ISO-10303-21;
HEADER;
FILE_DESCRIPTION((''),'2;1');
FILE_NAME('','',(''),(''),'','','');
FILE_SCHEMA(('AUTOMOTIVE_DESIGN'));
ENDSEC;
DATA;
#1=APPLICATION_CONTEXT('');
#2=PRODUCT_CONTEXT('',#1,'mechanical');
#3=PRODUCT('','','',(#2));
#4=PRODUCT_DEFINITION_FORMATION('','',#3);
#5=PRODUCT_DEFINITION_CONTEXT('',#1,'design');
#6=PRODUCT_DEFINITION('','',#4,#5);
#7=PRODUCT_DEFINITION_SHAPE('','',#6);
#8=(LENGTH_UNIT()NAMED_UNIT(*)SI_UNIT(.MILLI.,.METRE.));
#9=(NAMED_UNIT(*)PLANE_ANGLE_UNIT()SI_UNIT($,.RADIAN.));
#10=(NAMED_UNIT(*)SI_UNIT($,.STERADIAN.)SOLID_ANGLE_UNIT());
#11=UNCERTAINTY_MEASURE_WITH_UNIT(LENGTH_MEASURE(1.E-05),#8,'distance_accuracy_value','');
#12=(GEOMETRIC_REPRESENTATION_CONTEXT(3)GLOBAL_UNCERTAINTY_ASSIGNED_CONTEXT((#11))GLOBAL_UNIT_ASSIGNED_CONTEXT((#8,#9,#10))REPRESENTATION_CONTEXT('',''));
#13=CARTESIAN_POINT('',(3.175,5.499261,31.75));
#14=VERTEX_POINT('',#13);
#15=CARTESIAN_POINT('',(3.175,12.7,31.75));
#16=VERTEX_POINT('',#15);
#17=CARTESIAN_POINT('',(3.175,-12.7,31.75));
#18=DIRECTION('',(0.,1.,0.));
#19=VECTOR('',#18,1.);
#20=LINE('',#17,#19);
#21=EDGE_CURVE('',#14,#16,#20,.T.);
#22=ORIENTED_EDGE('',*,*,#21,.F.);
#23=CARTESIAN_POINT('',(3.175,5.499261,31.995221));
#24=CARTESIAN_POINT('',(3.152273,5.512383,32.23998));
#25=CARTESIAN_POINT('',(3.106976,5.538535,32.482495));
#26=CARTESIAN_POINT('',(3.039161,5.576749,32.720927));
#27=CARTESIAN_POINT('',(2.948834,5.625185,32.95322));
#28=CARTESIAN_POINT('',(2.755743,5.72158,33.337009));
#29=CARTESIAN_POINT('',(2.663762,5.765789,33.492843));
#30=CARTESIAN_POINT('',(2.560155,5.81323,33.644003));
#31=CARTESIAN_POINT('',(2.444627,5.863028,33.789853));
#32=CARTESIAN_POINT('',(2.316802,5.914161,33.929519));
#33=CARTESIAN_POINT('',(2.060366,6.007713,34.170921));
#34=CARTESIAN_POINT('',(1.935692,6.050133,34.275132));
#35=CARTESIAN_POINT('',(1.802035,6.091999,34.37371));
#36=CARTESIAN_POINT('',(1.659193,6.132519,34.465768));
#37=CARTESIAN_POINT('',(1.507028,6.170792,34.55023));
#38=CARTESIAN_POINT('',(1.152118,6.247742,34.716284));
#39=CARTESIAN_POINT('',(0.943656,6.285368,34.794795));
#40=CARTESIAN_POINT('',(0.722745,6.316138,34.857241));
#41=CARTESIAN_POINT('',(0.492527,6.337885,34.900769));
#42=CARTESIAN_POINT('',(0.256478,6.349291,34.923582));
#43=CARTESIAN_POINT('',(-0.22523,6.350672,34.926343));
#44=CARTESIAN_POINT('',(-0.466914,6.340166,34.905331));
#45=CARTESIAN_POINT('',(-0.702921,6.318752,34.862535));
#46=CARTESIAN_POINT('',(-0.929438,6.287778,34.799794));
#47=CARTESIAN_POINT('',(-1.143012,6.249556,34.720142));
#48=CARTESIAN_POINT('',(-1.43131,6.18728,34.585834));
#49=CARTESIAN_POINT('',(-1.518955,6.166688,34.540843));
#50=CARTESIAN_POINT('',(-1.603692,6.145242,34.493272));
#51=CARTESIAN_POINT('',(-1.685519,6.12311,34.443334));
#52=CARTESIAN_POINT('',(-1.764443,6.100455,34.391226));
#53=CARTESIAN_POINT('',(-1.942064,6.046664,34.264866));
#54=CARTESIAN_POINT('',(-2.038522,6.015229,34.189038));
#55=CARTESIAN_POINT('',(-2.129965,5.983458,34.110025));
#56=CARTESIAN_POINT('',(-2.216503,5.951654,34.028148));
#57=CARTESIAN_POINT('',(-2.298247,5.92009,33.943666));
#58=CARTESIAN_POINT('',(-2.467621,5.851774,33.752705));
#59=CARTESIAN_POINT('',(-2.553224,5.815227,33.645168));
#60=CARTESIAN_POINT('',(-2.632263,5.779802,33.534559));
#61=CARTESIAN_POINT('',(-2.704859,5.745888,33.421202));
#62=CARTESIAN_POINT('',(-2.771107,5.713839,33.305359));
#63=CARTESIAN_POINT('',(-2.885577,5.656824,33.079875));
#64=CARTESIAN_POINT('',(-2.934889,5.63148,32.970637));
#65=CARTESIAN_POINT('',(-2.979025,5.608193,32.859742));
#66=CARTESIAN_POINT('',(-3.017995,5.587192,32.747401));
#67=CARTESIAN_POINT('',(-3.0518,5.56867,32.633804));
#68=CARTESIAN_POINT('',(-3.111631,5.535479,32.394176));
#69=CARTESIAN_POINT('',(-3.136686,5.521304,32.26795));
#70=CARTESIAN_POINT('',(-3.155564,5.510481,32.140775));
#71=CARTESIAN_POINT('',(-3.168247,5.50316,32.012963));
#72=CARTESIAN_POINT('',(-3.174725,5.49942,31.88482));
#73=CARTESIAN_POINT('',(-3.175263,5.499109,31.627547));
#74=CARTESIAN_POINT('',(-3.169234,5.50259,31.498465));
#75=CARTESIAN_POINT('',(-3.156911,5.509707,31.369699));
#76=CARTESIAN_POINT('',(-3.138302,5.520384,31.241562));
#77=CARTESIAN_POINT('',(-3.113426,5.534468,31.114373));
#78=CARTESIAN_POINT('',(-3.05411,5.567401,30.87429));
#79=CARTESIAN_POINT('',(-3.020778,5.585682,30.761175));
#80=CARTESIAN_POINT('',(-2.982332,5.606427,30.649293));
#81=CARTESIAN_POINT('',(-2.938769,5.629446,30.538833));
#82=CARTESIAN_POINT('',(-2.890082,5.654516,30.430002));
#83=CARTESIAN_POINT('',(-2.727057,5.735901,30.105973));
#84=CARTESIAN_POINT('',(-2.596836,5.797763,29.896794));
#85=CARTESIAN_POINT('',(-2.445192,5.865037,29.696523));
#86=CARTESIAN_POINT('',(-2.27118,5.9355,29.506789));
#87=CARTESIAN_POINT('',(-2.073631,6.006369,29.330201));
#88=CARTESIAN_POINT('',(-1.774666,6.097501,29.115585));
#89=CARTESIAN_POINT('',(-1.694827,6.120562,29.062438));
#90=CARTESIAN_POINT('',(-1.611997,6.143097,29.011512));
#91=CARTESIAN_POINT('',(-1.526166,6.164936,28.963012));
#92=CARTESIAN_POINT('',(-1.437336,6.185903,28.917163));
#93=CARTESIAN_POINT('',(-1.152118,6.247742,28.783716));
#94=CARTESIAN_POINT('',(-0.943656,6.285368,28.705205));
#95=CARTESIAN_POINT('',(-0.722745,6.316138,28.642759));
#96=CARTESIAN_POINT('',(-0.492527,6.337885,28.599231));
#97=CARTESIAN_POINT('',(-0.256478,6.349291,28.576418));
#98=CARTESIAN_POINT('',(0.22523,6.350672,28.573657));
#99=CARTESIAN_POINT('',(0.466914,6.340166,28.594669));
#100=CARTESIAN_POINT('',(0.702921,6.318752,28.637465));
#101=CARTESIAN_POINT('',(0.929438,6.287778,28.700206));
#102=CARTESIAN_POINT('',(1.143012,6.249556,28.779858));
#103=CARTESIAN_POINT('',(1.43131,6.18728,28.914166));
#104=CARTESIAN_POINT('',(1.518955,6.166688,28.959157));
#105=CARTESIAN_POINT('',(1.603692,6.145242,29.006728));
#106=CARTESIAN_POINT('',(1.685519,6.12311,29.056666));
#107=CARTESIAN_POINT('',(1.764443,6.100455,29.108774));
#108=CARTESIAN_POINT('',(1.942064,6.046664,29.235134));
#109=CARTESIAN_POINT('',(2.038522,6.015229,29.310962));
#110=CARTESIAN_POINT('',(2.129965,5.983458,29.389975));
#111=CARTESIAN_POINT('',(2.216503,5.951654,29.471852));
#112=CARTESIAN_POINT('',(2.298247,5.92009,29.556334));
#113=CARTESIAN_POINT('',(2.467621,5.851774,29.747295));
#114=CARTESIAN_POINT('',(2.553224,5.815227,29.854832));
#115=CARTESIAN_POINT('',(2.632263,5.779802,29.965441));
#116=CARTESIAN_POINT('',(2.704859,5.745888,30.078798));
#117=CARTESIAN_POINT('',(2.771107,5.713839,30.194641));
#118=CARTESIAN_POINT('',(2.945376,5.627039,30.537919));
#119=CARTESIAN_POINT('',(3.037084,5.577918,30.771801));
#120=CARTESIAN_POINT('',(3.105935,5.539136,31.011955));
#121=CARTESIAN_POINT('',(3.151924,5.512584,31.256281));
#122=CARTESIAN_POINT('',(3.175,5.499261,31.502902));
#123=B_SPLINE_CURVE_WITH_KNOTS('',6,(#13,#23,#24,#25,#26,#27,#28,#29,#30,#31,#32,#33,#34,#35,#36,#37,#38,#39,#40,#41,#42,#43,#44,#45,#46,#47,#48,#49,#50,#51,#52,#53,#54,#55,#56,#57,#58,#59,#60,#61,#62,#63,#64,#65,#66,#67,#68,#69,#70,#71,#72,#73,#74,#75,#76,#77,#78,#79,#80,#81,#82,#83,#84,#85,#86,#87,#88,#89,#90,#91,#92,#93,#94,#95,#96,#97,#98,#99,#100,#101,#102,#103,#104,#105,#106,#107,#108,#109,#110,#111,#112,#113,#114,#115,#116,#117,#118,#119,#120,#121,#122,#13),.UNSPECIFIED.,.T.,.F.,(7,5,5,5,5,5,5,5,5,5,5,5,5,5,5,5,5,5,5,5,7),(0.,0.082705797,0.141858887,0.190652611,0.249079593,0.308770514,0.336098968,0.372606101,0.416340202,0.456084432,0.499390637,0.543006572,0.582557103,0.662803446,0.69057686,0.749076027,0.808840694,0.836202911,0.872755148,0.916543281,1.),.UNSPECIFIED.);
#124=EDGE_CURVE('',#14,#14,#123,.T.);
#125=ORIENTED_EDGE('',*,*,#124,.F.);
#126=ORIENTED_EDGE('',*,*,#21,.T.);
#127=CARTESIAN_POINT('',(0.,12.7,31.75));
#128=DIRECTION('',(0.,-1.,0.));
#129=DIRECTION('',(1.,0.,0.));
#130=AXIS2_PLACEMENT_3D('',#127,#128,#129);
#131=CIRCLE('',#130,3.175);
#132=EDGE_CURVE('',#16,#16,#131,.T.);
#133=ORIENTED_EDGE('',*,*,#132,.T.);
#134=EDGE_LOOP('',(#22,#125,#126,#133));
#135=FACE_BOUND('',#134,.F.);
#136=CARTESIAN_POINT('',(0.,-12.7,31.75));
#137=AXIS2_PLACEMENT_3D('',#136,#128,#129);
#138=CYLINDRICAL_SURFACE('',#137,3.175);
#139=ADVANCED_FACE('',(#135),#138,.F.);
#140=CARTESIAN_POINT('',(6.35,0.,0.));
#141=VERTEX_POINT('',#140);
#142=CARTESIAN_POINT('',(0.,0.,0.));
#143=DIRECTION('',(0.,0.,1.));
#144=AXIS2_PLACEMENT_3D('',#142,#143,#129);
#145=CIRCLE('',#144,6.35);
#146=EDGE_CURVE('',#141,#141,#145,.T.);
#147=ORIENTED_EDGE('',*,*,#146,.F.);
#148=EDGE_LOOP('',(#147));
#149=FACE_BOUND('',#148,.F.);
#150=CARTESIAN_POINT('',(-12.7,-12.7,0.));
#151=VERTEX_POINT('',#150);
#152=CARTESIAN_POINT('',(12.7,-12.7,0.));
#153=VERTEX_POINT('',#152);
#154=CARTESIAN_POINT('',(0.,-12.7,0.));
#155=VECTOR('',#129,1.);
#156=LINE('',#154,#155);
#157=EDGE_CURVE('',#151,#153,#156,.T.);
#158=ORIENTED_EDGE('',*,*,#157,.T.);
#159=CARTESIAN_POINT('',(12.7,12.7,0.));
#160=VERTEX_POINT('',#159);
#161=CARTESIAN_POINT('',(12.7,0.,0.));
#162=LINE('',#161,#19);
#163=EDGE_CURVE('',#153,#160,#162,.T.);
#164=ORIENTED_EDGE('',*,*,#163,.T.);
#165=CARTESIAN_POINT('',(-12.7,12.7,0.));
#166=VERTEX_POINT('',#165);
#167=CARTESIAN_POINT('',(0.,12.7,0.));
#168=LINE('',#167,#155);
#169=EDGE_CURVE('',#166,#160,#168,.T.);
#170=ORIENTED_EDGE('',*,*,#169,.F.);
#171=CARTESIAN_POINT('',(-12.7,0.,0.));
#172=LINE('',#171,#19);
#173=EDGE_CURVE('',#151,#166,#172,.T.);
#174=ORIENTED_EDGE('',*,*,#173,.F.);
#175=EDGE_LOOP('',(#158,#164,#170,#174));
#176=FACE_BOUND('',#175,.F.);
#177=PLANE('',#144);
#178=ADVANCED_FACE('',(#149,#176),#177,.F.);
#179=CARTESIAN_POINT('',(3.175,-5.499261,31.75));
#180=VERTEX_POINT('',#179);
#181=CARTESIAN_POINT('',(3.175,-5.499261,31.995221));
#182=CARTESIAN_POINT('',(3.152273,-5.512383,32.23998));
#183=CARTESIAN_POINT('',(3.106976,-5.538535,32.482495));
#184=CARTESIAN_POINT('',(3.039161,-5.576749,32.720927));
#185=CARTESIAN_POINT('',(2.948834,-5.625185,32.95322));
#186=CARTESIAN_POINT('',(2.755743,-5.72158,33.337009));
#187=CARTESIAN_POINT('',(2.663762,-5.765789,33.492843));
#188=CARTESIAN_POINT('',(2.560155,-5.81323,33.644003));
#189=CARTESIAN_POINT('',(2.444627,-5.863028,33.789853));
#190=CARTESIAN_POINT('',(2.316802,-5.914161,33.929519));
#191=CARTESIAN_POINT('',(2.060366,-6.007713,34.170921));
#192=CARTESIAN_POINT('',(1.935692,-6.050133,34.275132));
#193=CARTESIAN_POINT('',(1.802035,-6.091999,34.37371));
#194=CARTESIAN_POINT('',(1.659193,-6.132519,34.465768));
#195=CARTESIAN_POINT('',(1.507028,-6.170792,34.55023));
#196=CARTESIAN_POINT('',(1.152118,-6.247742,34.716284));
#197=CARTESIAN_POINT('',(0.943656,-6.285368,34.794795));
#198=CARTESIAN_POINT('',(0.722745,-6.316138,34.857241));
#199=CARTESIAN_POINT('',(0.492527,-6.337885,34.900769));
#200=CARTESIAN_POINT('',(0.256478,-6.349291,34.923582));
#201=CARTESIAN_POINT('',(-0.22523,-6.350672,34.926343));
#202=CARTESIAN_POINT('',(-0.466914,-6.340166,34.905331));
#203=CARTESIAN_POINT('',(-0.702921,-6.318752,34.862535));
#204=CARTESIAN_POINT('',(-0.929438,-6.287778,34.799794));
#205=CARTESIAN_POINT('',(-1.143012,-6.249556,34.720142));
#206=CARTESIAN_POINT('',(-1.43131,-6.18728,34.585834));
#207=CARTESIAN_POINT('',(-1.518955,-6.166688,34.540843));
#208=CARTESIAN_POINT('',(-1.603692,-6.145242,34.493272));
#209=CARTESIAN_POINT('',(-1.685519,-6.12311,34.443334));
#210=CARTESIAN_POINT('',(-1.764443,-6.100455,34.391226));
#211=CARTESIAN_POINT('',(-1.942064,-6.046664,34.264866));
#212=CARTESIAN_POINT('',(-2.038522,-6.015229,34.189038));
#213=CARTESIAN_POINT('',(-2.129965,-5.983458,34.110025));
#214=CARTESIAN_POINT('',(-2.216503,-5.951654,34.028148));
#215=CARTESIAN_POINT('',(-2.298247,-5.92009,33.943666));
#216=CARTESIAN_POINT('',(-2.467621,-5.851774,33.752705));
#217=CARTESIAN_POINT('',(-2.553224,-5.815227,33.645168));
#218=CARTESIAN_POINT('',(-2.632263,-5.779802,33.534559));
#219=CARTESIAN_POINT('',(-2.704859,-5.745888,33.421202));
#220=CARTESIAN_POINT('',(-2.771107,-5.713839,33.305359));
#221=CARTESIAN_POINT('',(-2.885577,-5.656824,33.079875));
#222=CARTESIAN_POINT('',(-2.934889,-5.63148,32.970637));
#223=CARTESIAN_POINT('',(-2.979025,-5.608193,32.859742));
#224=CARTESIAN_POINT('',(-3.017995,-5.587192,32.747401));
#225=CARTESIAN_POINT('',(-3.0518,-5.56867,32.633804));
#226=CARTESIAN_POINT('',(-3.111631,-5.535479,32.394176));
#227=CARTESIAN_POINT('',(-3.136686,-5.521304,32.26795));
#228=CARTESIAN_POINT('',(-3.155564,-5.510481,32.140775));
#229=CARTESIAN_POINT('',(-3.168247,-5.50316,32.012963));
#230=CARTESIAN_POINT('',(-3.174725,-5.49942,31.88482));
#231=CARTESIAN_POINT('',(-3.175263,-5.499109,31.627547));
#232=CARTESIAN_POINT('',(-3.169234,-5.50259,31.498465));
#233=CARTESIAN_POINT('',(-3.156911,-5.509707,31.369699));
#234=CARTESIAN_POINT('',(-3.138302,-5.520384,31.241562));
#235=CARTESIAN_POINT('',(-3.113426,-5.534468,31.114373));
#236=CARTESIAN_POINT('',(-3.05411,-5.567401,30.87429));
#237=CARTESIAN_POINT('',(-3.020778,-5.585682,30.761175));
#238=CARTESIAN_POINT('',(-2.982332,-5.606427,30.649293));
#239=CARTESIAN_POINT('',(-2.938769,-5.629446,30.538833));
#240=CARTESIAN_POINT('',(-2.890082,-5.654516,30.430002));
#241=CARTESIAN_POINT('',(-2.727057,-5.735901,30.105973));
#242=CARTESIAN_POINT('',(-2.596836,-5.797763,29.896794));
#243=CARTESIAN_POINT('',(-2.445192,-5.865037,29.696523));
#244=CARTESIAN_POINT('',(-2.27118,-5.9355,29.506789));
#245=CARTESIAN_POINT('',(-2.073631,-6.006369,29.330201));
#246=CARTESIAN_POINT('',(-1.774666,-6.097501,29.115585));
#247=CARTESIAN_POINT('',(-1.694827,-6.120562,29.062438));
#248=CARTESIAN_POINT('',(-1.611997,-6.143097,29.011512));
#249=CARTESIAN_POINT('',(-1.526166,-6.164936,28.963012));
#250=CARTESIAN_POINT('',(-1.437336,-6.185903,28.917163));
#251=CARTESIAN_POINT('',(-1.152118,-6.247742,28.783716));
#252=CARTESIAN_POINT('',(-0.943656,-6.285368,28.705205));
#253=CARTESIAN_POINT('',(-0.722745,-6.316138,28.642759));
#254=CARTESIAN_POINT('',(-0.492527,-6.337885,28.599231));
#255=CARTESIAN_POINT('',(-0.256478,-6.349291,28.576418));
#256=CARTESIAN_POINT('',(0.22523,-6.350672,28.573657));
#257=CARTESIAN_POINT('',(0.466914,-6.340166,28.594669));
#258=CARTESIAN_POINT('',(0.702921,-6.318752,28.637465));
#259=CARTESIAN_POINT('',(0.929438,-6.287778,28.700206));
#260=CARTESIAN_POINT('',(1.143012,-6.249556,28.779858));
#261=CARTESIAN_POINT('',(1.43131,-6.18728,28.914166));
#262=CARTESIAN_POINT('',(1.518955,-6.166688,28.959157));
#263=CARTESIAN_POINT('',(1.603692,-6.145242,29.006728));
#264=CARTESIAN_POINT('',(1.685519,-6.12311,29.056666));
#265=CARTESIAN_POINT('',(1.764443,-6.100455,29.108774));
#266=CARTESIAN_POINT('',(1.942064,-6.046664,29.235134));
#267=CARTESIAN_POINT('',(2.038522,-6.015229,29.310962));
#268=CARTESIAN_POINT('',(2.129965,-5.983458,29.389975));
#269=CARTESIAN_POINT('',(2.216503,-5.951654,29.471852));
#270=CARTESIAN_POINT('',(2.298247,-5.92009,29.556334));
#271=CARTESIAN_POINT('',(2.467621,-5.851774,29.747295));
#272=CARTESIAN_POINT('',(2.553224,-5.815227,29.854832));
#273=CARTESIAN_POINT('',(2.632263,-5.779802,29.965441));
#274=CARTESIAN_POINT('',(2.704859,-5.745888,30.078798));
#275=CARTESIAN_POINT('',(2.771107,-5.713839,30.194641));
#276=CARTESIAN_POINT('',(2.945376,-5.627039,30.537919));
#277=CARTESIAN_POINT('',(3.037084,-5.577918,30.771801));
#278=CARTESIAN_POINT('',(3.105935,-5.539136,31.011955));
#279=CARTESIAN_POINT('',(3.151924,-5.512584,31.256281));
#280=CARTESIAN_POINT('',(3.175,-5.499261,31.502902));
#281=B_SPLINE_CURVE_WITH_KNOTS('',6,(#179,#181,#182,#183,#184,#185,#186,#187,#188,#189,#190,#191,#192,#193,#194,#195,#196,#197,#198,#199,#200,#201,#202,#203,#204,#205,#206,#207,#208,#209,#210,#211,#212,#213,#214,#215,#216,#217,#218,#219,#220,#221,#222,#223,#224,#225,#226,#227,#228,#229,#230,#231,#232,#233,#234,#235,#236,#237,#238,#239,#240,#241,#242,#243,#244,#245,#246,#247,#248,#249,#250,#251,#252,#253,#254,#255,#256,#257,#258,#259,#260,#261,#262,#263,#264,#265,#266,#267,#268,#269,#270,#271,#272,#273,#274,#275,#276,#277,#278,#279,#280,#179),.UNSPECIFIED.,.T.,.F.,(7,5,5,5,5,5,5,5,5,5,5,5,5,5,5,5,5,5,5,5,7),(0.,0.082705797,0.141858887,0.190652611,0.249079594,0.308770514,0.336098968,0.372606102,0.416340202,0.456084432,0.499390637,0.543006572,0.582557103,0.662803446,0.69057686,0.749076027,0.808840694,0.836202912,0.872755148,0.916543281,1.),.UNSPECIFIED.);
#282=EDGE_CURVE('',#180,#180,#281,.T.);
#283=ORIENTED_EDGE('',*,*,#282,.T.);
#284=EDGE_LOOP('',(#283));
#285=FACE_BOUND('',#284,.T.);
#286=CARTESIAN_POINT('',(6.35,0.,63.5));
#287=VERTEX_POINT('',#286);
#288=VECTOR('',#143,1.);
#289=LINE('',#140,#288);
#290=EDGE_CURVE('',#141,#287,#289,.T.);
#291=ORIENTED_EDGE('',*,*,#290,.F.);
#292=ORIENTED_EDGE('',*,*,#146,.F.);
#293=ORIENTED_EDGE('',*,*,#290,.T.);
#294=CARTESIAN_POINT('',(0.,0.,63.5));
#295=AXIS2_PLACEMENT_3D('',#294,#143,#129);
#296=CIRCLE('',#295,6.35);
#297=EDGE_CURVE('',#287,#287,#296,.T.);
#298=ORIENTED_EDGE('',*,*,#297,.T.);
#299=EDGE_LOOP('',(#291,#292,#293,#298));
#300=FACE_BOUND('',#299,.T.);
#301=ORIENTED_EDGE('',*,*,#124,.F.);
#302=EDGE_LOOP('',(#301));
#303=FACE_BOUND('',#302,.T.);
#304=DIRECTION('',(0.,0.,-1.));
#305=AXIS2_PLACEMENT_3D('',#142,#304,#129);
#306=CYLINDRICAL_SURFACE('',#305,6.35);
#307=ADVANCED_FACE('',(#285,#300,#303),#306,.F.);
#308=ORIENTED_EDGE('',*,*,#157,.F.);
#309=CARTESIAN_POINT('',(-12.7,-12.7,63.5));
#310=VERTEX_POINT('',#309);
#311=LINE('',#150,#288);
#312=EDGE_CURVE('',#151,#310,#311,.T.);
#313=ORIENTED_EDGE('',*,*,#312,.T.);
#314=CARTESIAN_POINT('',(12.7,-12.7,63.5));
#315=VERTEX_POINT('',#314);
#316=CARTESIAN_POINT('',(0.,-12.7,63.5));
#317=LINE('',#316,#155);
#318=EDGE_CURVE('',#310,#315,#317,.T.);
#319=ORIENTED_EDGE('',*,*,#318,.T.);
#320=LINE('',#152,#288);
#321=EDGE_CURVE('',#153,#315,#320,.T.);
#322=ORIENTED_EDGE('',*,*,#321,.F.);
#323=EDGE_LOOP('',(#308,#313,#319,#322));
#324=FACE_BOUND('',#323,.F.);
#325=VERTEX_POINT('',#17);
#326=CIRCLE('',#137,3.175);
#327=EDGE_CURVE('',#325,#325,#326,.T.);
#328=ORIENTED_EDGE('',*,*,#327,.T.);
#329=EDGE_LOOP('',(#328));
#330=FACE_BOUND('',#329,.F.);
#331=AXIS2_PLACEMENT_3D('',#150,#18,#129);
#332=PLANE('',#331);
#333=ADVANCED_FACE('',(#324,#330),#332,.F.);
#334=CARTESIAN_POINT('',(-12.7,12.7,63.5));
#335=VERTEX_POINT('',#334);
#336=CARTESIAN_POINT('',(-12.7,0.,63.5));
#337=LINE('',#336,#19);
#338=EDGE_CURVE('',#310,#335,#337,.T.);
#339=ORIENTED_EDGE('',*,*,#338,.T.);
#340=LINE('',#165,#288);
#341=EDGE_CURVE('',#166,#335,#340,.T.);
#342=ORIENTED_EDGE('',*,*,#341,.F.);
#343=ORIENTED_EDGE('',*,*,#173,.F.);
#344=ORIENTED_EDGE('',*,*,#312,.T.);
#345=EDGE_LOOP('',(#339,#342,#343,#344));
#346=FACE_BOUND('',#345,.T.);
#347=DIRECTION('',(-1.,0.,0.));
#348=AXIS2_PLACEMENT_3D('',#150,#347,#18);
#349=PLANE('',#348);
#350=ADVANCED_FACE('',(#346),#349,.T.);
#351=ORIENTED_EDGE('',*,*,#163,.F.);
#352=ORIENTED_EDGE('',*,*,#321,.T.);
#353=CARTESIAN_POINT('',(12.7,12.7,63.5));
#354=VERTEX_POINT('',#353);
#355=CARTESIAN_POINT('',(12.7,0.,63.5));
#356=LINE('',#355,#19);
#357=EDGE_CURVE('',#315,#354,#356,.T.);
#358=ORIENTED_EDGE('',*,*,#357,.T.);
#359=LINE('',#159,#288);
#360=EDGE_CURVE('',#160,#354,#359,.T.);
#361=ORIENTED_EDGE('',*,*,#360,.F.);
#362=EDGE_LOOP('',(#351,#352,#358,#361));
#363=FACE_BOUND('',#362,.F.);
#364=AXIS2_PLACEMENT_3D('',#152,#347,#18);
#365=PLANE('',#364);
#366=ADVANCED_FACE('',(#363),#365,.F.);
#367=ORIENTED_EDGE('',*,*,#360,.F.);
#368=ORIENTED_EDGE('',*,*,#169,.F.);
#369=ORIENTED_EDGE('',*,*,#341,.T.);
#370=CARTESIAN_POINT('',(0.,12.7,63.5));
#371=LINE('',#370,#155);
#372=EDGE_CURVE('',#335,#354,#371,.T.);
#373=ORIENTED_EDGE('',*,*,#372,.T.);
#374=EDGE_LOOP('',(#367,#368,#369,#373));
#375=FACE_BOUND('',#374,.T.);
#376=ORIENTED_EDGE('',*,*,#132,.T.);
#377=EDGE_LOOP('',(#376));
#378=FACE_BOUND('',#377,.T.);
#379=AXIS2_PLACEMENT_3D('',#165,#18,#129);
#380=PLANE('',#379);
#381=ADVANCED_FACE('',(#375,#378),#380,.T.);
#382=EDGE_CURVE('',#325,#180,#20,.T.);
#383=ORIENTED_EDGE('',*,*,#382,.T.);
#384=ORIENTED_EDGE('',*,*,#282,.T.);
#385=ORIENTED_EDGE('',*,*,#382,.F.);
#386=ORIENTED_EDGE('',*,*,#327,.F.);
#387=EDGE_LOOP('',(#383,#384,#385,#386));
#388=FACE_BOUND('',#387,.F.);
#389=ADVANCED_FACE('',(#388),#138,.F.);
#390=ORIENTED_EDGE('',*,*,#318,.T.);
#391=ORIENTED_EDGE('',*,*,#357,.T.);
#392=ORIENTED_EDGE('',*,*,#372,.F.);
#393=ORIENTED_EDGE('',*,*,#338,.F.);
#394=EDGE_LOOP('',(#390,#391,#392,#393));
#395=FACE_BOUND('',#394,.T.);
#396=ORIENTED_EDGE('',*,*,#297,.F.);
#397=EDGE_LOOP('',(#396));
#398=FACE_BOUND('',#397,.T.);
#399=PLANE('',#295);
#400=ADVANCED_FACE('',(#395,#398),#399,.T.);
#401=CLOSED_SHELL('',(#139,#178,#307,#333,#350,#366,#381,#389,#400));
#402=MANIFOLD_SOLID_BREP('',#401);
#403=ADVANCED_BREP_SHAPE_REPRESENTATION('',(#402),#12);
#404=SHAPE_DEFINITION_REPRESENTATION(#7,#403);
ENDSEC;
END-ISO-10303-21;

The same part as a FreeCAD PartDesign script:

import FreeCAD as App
import Part
import Sketcher
from FreeCAD import Vector
Q = App.Units.Quantity


def add_polygon(sketch, points):
    """Adds a closed chain of lines whose ends are joined by coincident constraints."""
    first, n = sketch.GeometryCount, len(points)
    for a, b in zip(points, points[1:] + points[:1]):
        sketch.addGeometry(Part.LineSegment(App.Vector(*a, 0), App.Vector(*b, 0)), False)
    for i in range(n):
        sketch.addConstraint(Sketcher.Constraint("Coincident", first + i, 2, first + (i + 1) % n, 1))

doc = App.newDocument("Part")
body = doc.addObject("PartDesign::Body", "Body")

# Sketch on XY plane
sketch1 = body.newObject("Sketcher::SketchObject", "Sketch")
sketch1.AttachmentSupport = (doc.getObject("XY_Plane"), [""])
sketch1.MapMode = "FlatFace"
add_polygon(sketch1, [(-13, 13), (-13, -13), (13, -13), (13, 13)])  # lines 0-3
sketch1.addGeometry(Part.Circle(Vector(0, 0, 0), Vector(0, 0, 1), 6), False)  # 4
sketch1.addConstraint([
    Sketcher.Constraint("Vertical", 0),
    Sketcher.Constraint("Horizontal", 1),
    Sketcher.Constraint("Vertical", 2),
    Sketcher.Constraint("Horizontal", 3),
    Sketcher.Constraint("Coincident", 4, 3, -1, 1),
    Sketcher.Constraint("Symmetric", 0, 2, 2, 2, -1, 1),
    Sketcher.Constraint("Equal", 3, 0),
    Sketcher.Constraint("Diameter", 4, Q("0.5 in")),
    Sketcher.Constraint("DistanceX", 1, 1, 1, 2, Q("1 in")),
])
pad1 = body.newObject("PartDesign::Pad", "Pad")
pad1.Profile = sketch1
pad1.Length = Q("2.5 in")

# Sketch on XZ plane
sketch2 = body.newObject("Sketcher::SketchObject", "Sketch001")
sketch2.AttachmentSupport = (doc.getObject("XZ_Plane"), [""])
sketch2.MapMode = "FlatFace"
sketch2.AttachmentOffset = App.Placement(Vector(0, 0, 0.5 * 25.4), App.Rotation())
sketch2.addGeometry(Part.Circle(Vector(0, 31.8, 0), Vector(0, 0, 1), 3.2), False)
sketch2.addConstraint([
    Sketcher.Constraint("PointOnObject", 0, 3, -2),
    Sketcher.Constraint("Diameter", 0, Q("0.25 in")),
    Sketcher.Constraint("DistanceY", -1, 1, 0, 3, Q("1.25 in")),
])
pocket1 = body.newObject("PartDesign::Pocket", "Pocket")
pocket1.Profile = sketch2
pocket1.Type = "ThroughAll"

doc.recompute()
